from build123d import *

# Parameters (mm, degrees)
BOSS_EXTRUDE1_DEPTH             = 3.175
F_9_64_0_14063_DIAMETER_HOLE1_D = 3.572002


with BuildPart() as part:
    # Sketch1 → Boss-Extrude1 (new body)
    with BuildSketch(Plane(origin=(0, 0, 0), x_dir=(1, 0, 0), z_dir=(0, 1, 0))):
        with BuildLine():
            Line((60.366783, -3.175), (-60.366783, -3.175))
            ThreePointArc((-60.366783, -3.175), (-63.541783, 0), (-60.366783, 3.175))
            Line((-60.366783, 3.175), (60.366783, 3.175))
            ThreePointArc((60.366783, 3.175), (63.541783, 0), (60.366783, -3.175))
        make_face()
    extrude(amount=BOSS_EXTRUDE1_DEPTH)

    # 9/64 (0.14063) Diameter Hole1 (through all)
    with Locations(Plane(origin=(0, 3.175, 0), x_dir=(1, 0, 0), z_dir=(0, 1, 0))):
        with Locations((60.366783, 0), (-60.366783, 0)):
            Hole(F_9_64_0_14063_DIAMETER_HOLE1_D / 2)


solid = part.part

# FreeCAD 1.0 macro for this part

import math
import FreeCAD as App
import Part
import Sketcher

V = App.Vector
Q = App.Units.Quantity

doc = App.newDocument("Part")
body = doc.addObject("PartDesign::Body", "Body")

sketch1 = body.newObject("Sketcher::SketchObject", "Sketch")
sketch1.AttachmentSupport = (doc.getObject("XZ_Plane"), [""])
sketch1.MapMode = "FlatFace"
sketch1.addGeometry([
    Part.LineSegment(V(-60.366783, 3.175, 0), V(60.366783, 3.175, 0)),
    Part.ArcOfCircle(Part.Circle(V(60.366783, 0, 0), V(0, 0, 1), 3.175), math.radians(-90), math.radians(90)),
    Part.LineSegment(V(60.366783, -3.175, 0), V(-60.366783, -3.175, 0)),
    Part.ArcOfCircle(Part.Circle(V(-60.366783, 0, 0), V(0, 0, 1), 3.175), math.radians(90), math.radians(270)),
], False)
sketch1.addConstraint([
    Sketcher.Constraint("Tangent", 0, 2, 1, 2),
    Sketcher.Constraint("Tangent", 1, 1, 2, 1),
    Sketcher.Constraint("Tangent", 2, 2, 3, 2),
    Sketcher.Constraint("Tangent", 3, 1, 0, 1),
    Sketcher.Constraint("Horizontal", 0),
    Sketcher.Constraint("Horizontal", 2),
    Sketcher.Constraint("Symmetric", 1, 3, 3, 3, -1, 1),
    Sketcher.Constraint("Radius", 1, Q("0.125 in")),
    Sketcher.Constraint("DistanceX", 0, 1, 0, 2, 120.733566),
])
pad1 = body.newObject("PartDesign::Pad", "Pad")
pad1.Profile = sketch1
pad1.Length = Q("0.125 in")
pad1.Reversed = True

sketch2 = body.newObject("Sketcher::SketchObject", "Sketch001")
sketch2.AttachmentSupport = (doc.getObject("XZ_Plane"), [""])
sketch2.MapMode = "FlatFace"
sketch2.AttachmentOffset = App.Placement(V(0, 0, -0.125 * 25.4), App.Rotation())
sketch2.addGeometry([
    Part.Circle(V(60.366783, 0, 0), V(0, 0, 1), 1.786001),
    Part.Circle(V(-60.366783, 0, 0), V(0, 0, 1), 1.786001),
], False)
sketch2.addConstraint([
    Sketcher.Constraint("Equal", 0, 1),
    Sketcher.Constraint("Symmetric", 0, 3, 1, 3, -1, 1),
    Sketcher.Constraint("PointOnObject", 0, 3, -1),
    Sketcher.Constraint("Diameter", 0, 3.572002),
    Sketcher.Constraint("DistanceX", -1, 1, 0, 3, 60.366783),
])
doc.recompute()
hole = body.newObject("PartDesign::Hole", "Hole")
hole.Profile = sketch2
hole.ThreadType = "None"
hole.Diameter = 3.572002
hole.DepthType = "ThroughAll"
hole.Reversed = True

doc.recompute()
